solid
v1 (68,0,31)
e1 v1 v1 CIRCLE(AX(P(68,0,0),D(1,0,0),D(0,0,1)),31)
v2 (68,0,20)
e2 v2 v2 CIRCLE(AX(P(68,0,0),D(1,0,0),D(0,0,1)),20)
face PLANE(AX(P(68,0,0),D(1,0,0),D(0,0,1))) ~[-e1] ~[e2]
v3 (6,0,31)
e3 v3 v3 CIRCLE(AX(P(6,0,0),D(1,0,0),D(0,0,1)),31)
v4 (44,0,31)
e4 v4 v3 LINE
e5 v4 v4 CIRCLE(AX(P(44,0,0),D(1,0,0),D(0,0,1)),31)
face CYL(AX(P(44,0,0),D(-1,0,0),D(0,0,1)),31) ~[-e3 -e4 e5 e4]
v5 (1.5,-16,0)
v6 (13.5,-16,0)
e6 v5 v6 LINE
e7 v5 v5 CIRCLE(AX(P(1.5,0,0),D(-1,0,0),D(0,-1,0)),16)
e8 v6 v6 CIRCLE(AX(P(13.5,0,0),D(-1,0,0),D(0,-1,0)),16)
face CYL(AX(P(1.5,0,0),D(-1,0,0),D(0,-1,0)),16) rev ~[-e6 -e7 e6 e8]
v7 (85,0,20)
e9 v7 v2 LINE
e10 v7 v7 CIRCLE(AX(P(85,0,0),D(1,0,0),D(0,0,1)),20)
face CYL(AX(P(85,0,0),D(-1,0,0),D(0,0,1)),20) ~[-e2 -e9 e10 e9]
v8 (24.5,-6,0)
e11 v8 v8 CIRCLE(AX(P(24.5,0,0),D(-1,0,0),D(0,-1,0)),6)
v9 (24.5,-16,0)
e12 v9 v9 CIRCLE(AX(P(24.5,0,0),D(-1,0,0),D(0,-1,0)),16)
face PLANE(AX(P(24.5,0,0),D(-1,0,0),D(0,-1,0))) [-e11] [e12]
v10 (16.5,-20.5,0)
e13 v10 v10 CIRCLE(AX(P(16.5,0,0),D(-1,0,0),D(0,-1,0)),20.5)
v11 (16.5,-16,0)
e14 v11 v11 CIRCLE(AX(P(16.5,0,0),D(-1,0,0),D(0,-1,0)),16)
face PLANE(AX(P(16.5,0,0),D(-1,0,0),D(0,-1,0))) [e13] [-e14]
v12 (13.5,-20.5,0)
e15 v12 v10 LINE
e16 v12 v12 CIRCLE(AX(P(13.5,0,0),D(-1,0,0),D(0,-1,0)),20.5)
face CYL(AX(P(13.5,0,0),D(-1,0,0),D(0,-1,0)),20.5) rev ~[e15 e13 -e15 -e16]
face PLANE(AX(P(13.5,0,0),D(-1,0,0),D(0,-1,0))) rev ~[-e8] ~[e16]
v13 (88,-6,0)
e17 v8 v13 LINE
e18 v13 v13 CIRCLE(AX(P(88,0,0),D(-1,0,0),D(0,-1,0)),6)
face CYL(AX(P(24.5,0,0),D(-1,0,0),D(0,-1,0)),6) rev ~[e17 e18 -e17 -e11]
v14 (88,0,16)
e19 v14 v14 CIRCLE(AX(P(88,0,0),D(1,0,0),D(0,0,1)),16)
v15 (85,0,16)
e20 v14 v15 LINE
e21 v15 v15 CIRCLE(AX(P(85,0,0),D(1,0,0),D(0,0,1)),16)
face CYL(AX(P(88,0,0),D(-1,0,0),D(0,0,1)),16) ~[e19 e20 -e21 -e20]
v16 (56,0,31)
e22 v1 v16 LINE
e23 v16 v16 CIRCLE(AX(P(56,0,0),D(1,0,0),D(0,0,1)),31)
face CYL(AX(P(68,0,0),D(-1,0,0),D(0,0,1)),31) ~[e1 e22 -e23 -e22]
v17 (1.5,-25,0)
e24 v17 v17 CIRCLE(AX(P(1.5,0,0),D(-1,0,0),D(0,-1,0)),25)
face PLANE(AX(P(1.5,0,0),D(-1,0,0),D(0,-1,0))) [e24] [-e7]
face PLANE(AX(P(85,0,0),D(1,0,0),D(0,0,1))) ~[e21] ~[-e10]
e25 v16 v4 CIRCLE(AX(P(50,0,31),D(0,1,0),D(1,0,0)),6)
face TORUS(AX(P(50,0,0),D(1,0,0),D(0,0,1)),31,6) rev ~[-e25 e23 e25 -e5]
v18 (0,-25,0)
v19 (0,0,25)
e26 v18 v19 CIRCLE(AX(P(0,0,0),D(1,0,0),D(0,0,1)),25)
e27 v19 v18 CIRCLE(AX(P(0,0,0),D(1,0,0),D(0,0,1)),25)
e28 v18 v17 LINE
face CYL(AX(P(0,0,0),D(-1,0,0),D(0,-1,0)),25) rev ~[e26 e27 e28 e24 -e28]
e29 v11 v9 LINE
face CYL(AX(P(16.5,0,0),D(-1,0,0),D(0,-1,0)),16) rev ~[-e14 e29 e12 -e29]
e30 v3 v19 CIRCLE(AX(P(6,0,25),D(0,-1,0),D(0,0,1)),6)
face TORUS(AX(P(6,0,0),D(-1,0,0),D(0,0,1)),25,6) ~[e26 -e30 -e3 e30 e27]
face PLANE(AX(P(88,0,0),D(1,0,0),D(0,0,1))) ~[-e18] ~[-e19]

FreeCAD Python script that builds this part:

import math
import FreeCAD as App
import Part
import Sketcher

V = App.Vector

doc = App.newDocument("Part")
body = doc.addObject("PartDesign::Body", "Body")

sketch1 = body.newObject("Sketcher::SketchObject", "Sketch")
sketch1.AttachmentSupport = (doc.getObject("XZ_Plane"), [""])
sketch1.MapMode = "FlatFace"
sketch1.addGeometry([
    Part.LineSegment(V(0, 25, 0), V(0, 0, 0)),
    Part.LineSegment(V(0, 0, 0), V(88, 0, 0)),
    Part.LineSegment(V(88, 0, 0), V(88, 16, 0)),
    Part.LineSegment(V(88, 16, 0), V(85, 16, 0)),
    Part.LineSegment(V(85, 16, 0), V(85, 20, 0)),
    Part.LineSegment(V(85, 20, 0), V(68, 20, 0)),
    Part.LineSegment(V(68, 20, 0), V(68, 31, 0)),
    Part.LineSegment(V(68, 31, 0), V(56, 31, 0)),
    Part.ArcOfCircle(Part.Circle(V(50, 31, 0), V(0, 0, 1), 6), math.radians(180), math.radians(360)),
    Part.LineSegment(V(44, 31, 0), V(6, 31, 0)),
    Part.ArcOfCircle(Part.Circle(V(6, 25, 0), V(0, 0, 1), 6), math.radians(90), math.radians(180)),
], False)
sketch1.addConstraint([
    Sketcher.Constraint("Coincident", 0, 2, 1, 1),
    Sketcher.Constraint("Coincident", 1, 2, 2, 1),
    Sketcher.Constraint("Coincident", 2, 2, 3, 1),
    Sketcher.Constraint("Coincident", 3, 2, 4, 1),
    Sketcher.Constraint("Coincident", 4, 2, 5, 1),
    Sketcher.Constraint("Coincident", 5, 2, 6, 1),
    Sketcher.Constraint("Coincident", 6, 2, 7, 1),
    Sketcher.Constraint("Coincident", 7, 2, 8, 2),
    Sketcher.Constraint("Coincident", 8, 1, 9, 1),
    Sketcher.Constraint("Tangent", 9, 2, 10, 1),
    Sketcher.Constraint("Tangent", 10, 2, 0, 1),
    Sketcher.Constraint("Vertical", 0),
    Sketcher.Constraint("Horizontal", 1),
    Sketcher.Constraint("Vertical", 2),
    Sketcher.Constraint("Horizontal", 3),
    Sketcher.Constraint("Vertical", 4),
    Sketcher.Constraint("Horizontal", 5),
    Sketcher.Constraint("Vertical", 6),
    Sketcher.Constraint("Horizontal", 7),
    Sketcher.Constraint("Horizontal", 9),
    Sketcher.Constraint("Coincident", 0, 2, -1, 1),
    Sketcher.Constraint("Equal", 8, 10),
    Sketcher.Constraint("Horizontal", 8, 3, 6, 2),
    Sketcher.Constraint("Horizontal", 7, 2, 8, 1),
    Sketcher.Constraint("Radius", 8, 6.0),
    Sketcher.Constraint("DistanceX", 1, 1, 1, 2, 88.0),
    Sketcher.Constraint("DistanceX", 3, 2, 3, 1, 3.0),
    Sketcher.Constraint("DistanceX", 5, 2, 5, 1, 17.0),
    Sketcher.Constraint("DistanceX", 7, 2, 7, 1, 12.0),
    Sketcher.Constraint("DistanceY", 0, 2, 0, 1, 25.0),
    Sketcher.Constraint("DistanceY", 2, 1, 2, 2, 16.0),
    Sketcher.Constraint("DistanceY", 4, 1, 4, 2, 4.0),
])
revolution = body.newObject("PartDesign::Revolution", "Revolution")
revolution.Profile = sketch1
revolution.ReferenceAxis = (sketch1, ["H_Axis"])
revolution.Angle = 360

sketch2 = body.newObject("Sketcher::SketchObject", "Sketch001")
sketch2.AttachmentSupport = (doc.getObject("YZ_Plane"), [""])
sketch2.MapMode = "FlatFace"
sketch2.addGeometry(Part.Circle(V(0, 0, 0), V(0, 0, 1), 25), False)
sketch2.addConstraint([
    Sketcher.Constraint("Coincident", 0, 3, -1, 1),
    Sketcher.Constraint("Diameter", 0, 50.0),
])
pocket1 = body.newObject("PartDesign::Pocket", "Pocket")
pocket1.Profile = sketch2
pocket1.Length = 1.5
pocket1.Reversed = True

sketch3 = body.newObject("Sketcher::SketchObject", "Sketch002")
sketch3.AttachmentSupport = (doc.getObject("YZ_Plane"), [""])
sketch3.MapMode = "FlatFace"
sketch3.AttachmentOffset = App.Placement(V(0, 0, 1.5), App.Rotation())
sketch3.addGeometry(Part.Circle(V(0, 0, 0), V(0, 0, 1), 16), False)
sketch3.addConstraint([
    Sketcher.Constraint("Coincident", 0, 3, -1, 1),
    Sketcher.Constraint("Diameter", 0, 32.0),
])
pocket2 = body.newObject("PartDesign::Pocket", "Pocket001")
pocket2.Profile = sketch3
pocket2.Length = 12
pocket2.Reversed = True

sketch4 = body.newObject("Sketcher::SketchObject", "Sketch003")
sketch4.AttachmentSupport = (doc.getObject("YZ_Plane"), [""])
sketch4.MapMode = "FlatFace"
sketch4.AttachmentOffset = App.Placement(V(0, 0, 13.5), App.Rotation())
sketch4.addGeometry(Part.Circle(V(0, 0, 0), V(0, 0, 1), 20.5), False)
sketch4.addConstraint([
    Sketcher.Constraint("Coincident", 0, 3, -1, 1),
    Sketcher.Constraint("Diameter", 0, 41.0),
])
pocket3 = body.newObject("PartDesign::Pocket", "Pocket002")
pocket3.Profile = sketch4
pocket3.Length = 3
pocket3.Reversed = True

sketch5 = body.newObject("Sketcher::SketchObject", "Sketch004")
sketch5.AttachmentSupport = (doc.getObject("YZ_Plane"), [""])
sketch5.MapMode = "FlatFace"
sketch5.AttachmentOffset = App.Placement(V(0, 0, 16.5), App.Rotation())
sketch5.addGeometry(Part.Circle(V(0, 0, 0), V(0, 0, 1), 16), False)
sketch5.addConstraint([
    Sketcher.Constraint("Coincident", 0, 3, -1, 1),
    Sketcher.Constraint("Diameter", 0, 32.0),
])
pocket4 = body.newObject("PartDesign::Pocket", "Pocket003")
pocket4.Profile = sketch5
pocket4.Length = 8
pocket4.Reversed = True

sketch6 = body.newObject("Sketcher::SketchObject", "Sketch005")
sketch6.AttachmentSupport = (doc.getObject("YZ_Plane"), [""])
sketch6.MapMode = "FlatFace"
sketch6.AttachmentOffset = App.Placement(V(0, 0, 24.5), App.Rotation())
sketch6.addGeometry(Part.Circle(V(0, 0, 0), V(0, 0, 1), 6), False)
sketch6.addConstraint([
    Sketcher.Constraint("Coincident", 0, 3, -1, 1),
    Sketcher.Constraint("Diameter", 0, 12.0),
])
pocket5 = body.newObject("PartDesign::Pocket", "Pocket004")
pocket5.Profile = sketch6
pocket5.Type = "ThroughAll"
pocket5.Reversed = True

doc.recompute()
